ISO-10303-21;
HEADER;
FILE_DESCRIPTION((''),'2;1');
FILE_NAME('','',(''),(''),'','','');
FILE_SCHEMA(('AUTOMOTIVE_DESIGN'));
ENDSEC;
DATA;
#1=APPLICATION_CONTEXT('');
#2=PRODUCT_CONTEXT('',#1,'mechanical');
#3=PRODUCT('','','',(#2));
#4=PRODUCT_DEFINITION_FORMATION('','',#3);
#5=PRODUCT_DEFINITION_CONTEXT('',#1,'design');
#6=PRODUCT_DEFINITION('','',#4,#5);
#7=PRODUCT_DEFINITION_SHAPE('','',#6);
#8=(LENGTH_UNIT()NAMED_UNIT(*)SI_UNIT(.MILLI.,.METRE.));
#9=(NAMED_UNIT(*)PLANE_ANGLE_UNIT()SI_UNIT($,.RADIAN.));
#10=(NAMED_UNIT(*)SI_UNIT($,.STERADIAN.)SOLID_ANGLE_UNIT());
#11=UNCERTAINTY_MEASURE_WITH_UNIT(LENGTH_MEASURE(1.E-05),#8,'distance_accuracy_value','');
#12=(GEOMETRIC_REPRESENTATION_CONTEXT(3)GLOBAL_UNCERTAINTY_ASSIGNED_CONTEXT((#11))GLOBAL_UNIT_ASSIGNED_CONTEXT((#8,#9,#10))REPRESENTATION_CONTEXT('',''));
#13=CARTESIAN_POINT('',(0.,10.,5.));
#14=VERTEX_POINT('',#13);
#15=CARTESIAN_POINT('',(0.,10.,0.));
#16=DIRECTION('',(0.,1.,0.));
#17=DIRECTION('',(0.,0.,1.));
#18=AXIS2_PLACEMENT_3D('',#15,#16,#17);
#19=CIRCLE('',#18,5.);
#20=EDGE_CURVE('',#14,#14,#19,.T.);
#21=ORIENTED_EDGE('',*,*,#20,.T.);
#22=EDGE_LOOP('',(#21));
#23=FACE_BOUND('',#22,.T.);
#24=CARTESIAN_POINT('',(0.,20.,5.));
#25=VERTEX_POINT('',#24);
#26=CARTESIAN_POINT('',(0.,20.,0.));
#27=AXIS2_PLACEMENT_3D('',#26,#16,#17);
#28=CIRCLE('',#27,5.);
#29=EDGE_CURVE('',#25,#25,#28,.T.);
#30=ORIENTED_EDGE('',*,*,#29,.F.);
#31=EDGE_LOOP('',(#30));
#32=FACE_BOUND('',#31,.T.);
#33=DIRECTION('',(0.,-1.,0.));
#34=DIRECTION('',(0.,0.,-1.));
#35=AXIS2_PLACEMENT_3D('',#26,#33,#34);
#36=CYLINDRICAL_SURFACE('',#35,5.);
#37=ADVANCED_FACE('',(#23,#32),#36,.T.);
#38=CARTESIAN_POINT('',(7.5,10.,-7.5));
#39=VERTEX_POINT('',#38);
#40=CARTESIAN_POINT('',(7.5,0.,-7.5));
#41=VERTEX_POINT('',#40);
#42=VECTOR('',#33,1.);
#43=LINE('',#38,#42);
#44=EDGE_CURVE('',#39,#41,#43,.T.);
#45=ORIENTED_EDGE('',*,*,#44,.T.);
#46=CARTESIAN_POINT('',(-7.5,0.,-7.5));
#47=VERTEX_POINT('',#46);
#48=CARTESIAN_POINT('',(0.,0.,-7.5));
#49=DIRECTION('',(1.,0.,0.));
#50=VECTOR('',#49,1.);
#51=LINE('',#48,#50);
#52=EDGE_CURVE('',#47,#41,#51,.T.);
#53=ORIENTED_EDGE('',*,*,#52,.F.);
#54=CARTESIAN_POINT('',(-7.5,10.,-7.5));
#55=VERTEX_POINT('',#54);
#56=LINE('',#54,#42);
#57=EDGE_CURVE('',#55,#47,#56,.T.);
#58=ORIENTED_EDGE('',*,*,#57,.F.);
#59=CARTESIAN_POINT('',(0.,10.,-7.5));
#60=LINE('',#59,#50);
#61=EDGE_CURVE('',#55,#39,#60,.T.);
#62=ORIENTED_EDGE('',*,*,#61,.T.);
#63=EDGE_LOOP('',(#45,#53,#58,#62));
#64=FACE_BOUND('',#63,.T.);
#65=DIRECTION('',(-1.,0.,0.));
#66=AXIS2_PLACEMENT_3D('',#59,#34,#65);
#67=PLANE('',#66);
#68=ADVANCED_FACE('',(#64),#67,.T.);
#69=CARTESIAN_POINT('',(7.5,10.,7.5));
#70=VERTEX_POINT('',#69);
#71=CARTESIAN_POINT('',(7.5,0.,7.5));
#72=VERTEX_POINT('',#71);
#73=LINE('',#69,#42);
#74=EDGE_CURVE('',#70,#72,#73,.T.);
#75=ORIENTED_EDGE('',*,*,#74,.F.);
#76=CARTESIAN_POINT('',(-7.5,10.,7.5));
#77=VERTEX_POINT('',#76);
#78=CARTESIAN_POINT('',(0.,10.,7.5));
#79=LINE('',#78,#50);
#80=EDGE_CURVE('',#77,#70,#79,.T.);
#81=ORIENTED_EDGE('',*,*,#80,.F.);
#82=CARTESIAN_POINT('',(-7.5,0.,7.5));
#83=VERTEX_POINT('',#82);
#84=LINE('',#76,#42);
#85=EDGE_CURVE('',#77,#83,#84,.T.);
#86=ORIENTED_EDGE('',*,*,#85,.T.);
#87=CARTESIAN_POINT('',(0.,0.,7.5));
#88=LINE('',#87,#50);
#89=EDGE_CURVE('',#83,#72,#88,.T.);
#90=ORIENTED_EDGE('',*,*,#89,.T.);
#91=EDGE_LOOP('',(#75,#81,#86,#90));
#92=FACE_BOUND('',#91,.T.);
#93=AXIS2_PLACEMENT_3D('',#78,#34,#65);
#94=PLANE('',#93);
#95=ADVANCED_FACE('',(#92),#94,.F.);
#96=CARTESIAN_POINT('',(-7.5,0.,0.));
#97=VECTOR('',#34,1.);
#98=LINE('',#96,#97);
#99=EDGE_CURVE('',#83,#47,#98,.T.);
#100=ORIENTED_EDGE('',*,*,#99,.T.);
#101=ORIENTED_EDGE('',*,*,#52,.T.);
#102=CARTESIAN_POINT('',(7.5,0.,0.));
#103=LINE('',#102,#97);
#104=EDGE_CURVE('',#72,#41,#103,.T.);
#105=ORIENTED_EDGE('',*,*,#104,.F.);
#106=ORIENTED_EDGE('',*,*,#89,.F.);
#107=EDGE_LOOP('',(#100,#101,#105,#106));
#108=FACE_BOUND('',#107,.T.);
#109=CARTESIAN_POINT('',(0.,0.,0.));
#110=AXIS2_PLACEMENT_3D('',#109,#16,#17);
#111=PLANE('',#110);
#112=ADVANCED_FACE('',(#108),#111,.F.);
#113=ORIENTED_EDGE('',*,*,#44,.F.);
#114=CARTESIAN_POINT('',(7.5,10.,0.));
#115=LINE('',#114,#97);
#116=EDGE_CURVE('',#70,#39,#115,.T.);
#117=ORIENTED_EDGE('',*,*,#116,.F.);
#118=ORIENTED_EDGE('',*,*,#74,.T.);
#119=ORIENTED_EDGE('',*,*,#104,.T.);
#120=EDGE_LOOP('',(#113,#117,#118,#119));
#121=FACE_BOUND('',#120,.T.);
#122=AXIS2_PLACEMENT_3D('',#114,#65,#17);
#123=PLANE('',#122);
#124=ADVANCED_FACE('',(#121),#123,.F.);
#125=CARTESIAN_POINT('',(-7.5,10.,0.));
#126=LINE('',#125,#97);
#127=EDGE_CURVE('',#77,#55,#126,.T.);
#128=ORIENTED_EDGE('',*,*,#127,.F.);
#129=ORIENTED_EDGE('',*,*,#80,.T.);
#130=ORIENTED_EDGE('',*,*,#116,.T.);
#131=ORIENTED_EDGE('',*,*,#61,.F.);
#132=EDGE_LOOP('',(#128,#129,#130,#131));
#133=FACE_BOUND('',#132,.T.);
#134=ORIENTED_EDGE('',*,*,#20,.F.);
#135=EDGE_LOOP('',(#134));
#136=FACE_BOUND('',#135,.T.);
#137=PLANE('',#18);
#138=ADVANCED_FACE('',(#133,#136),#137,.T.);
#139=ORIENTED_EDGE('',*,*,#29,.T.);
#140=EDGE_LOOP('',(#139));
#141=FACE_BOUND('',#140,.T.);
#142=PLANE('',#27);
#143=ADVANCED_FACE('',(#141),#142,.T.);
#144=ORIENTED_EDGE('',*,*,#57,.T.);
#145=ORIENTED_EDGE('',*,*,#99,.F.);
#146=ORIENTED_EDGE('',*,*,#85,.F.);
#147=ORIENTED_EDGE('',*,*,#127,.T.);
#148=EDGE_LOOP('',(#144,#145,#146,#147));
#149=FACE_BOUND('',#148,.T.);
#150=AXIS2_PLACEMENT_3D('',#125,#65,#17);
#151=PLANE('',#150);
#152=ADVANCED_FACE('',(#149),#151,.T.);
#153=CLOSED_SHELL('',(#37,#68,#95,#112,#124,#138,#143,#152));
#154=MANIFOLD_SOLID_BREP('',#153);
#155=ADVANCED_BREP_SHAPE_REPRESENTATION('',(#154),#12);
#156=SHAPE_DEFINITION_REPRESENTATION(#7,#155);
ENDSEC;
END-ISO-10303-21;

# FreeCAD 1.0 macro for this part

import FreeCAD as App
import Part
import Sketcher


def add_polygon(sketch, points):
    """Adds a closed chain of lines whose ends are joined by coincident constraints."""
    first, n = sketch.GeometryCount, len(points)
    for a, b in zip(points, points[1:] + points[:1]):
        sketch.addGeometry(Part.LineSegment(App.Vector(*a, 0), App.Vector(*b, 0)), False)
    for i in range(n):
        sketch.addConstraint(Sketcher.Constraint("Coincident", first + i, 2, first + (i + 1) % n, 1))

doc = App.newDocument("Part")
params = doc.addObject("Spreadsheet::Sheet", "Params")
for row, (alias, value) in enumerate([
    ("sketch1_diameter", "10 mm"),
    ("pad1_length", "20 mm"),
    ("sketch2_width", "15 mm"),
    ("pad2_length", "10 mm"),
], start=1):
    params.set(f"A{row}", alias)
    params.set(f"B{row}", "=" + value)
    params.setAlias(f"B{row}", alias)

body = doc.addObject("PartDesign::Body", "Body")

# Sketch on XZ plane
sketch1 = body.newObject("Sketcher::SketchObject", "Sketch")
sketch1.AttachmentSupport = (doc.getObject("XZ_Plane"), [""])
sketch1.MapMode = "FlatFace"
sketch1.addGeometry(Part.Circle(App.Vector(0, 0, 0), App.Vector(0, 0, 1), 5), False)
sketch1.addConstraint(Sketcher.Constraint("Coincident", 0, 3, -1, 1))
sketch1.addConstraint(Sketcher.Constraint("Diameter", 0, 10.0))
sketch1.setExpression("Constraints[1]", "Params.sketch1_diameter")
pad1 = body.newObject("PartDesign::Pad", "Pad")
pad1.Profile = sketch1
pad1.setExpression("Length", "Params.pad1_length")
pad1.Reversed = True

# Sketch on XZ plane
sketch2 = body.newObject("Sketcher::SketchObject", "Sketch001")
sketch2.AttachmentSupport = (doc.getObject("XZ_Plane"), [""])
sketch2.MapMode = "FlatFace"
add_polygon(sketch2, [(-8, -8), (-8, 8), (8, 8), (8, -8)])  # lines 0-3
sketch2.addConstraint(Sketcher.Constraint("Vertical", 0))
sketch2.addConstraint(Sketcher.Constraint("Horizontal", 1))
sketch2.addConstraint(Sketcher.Constraint("Vertical", 2))
sketch2.addConstraint(Sketcher.Constraint("Horizontal", 3))
sketch2.addConstraint(Sketcher.Constraint("Symmetric", 0, 2, 2, 2, -1, 1))
sketch2.addConstraint(Sketcher.Constraint("Equal", 3, 0))
sketch2.addConstraint(Sketcher.Constraint("DistanceX", 1, 1, 1, 2, 15.0))
sketch2.setExpression("Constraints[10]", "Params.sketch2_width")
pad2 = body.newObject("PartDesign::Pad", "Pad001")
pad2.Profile = sketch2
pad2.setExpression("Length", "Params.pad2_length")
pad2.Reversed = True

doc.recompute()
